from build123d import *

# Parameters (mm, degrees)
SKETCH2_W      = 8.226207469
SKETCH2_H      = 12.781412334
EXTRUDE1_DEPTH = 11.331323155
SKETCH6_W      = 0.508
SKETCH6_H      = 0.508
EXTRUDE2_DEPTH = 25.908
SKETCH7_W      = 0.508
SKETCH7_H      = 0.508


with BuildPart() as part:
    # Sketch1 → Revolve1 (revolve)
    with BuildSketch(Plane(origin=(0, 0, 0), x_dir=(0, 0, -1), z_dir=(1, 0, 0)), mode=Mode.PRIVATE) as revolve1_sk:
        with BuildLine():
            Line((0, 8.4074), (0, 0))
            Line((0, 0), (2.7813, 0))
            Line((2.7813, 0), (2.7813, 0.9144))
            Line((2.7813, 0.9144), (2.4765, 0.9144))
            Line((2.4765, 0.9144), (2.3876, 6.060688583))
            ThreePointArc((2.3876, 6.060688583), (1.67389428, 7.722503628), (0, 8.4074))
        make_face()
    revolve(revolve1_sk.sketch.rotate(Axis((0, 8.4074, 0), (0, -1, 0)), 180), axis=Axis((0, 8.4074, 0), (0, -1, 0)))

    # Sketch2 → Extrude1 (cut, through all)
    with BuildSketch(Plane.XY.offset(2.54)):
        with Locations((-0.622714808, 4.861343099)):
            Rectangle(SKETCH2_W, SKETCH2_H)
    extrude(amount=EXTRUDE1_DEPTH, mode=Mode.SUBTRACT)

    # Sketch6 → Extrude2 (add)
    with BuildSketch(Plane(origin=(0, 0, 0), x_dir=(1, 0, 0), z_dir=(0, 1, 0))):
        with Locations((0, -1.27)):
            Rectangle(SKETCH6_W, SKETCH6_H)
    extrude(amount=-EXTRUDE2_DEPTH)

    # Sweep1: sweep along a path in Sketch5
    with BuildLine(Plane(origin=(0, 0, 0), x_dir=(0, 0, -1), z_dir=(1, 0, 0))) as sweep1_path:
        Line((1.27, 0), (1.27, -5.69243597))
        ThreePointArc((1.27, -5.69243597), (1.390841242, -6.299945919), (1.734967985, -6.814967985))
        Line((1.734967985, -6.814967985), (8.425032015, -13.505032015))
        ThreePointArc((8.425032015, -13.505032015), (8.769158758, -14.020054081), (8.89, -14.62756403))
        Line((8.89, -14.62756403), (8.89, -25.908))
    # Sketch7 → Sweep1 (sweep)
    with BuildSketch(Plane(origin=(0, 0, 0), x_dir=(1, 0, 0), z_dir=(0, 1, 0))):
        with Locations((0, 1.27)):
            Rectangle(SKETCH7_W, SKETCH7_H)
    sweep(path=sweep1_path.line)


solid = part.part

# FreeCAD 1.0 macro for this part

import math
import FreeCAD as App
import Part
import Sketcher

V = App.Vector
Q = App.Units.Quantity

doc = App.newDocument("Part")
body = doc.addObject("PartDesign::Body", "Body")

# Sketch on YZ plane
sketch1 = body.newObject("Sketcher::SketchObject", "Sketch")
sketch1.AttachmentSupport = (doc.getObject("YZ_Plane"), [""])
sketch1.MapMode = "FlatFace"
sketch1.addGeometry(Part.LineSegment(V(8.41, 0, 0), V(0, 0, 0)), False)
sketch1.addGeometry(Part.LineSegment(V(0, 0, 0), V(0, -2.78, 0)), False)
sketch1.addGeometry(Part.LineSegment(V(0, -2.78, 0), V(0.91, -2.78, 0)), False)
sketch1.addGeometry(Part.LineSegment(V(0.91, -2.78, 0), V(0.91, -2.48, 0)), False)
sketch1.addGeometry(Part.LineSegment(V(0.91, -2.48, 0), V(6.06, -2.39, 0)), False)
sketch1.addGeometry(Part.ArcOfCircle(Part.Circle(V(6.02, 0, 0), V(0, 0, 1), 2.39), math.radians(-89), math.radians(0)), False)
sketch1.addConstraint(Sketcher.Constraint("Coincident", 0, 2, 1, 1))
sketch1.addConstraint(Sketcher.Constraint("Coincident", 1, 2, 2, 1))
sketch1.addConstraint(Sketcher.Constraint("Coincident", 2, 2, 3, 1))
sketch1.addConstraint(Sketcher.Constraint("Coincident", 3, 2, 4, 1))
sketch1.addConstraint(Sketcher.Constraint("Tangent", 4, 2, 5, 1))
sketch1.addConstraint(Sketcher.Constraint("Coincident", 5, 2, 0, 1))
sketch1.addConstraint(Sketcher.Constraint("Horizontal", 0))
sketch1.addConstraint(Sketcher.Constraint("Vertical", 1))
sketch1.addConstraint(Sketcher.Constraint("Horizontal", 2))
sketch1.addConstraint(Sketcher.Constraint("Vertical", 3))
sketch1.addConstraint(Sketcher.Constraint("Coincident", 0, 2, -1, 1))
sketch1.addConstraint(Sketcher.Constraint("PointOnObject", 5, 3, -1))
sketch1.addConstraint(Sketcher.Constraint("DistanceX", 0, 2, 0, 1, Q("0.331 in")))
sketch1.addConstraint(Sketcher.Constraint("DistanceX", 2, 1, 2, 2, Q("0.036 in")))
sketch1.addConstraint(Sketcher.Constraint("DistanceY", 3, 1, 3, 2, Q("0.012 in")))
sketch1.addConstraint(Sketcher.Constraint("DistanceY", 1, 2, 1, 1, Q("0.1095 in")))
sketch1.addConstraint(Sketcher.Constraint("DistanceY", 4, 2, -1, 1, Q("0.094 in")))
revolution = body.newObject("PartDesign::Revolution", "Revolution")
revolution.Profile = sketch1
revolution.ReferenceAxis = (sketch1, ["H_Axis"])
revolution.Angle = 360

# Sketch on XY plane
sketch2 = body.newObject("Sketcher::SketchObject", "Sketch001")
sketch2.AttachmentSupport = (doc.getObject("XY_Plane"), [""])
sketch2.MapMode = "FlatFace"
sketch2.AttachmentOffset = App.Placement(V(0, 0, 0.1 * 25.4), App.Rotation())
sketch2.addGeometry(Part.LineSegment(V(-5, 11, 0), V(-5, -2, 0)), False)
sketch2.addGeometry(Part.LineSegment(V(-5, -2, 0), V(3, -2, 0)), False)
sketch2.addGeometry(Part.LineSegment(V(3, -2, 0), V(3, 11, 0)), False)
sketch2.addGeometry(Part.LineSegment(V(3, 11, 0), V(-5, 11, 0)), False)
sketch2.addConstraint(Sketcher.Constraint("Coincident", 0, 2, 1, 1))
sketch2.addConstraint(Sketcher.Constraint("Coincident", 1, 2, 2, 1))
sketch2.addConstraint(Sketcher.Constraint("Coincident", 2, 2, 3, 1))
sketch2.addConstraint(Sketcher.Constraint("Coincident", 3, 2, 0, 1))
sketch2.addConstraint(Sketcher.Constraint("Vertical", 0))
sketch2.addConstraint(Sketcher.Constraint("Horizontal", 1))
sketch2.addConstraint(Sketcher.Constraint("Vertical", 2))
sketch2.addConstraint(Sketcher.Constraint("Horizontal", 3))
sketch2.addConstraint(Sketcher.Constraint("DistanceX", 1, 1, 1, 2, 8.226207))
sketch2.addConstraint(Sketcher.Constraint("DistanceY", 0, 2, 0, 1, 12.781412))
sketch2.addConstraint(Sketcher.Constraint("DistanceX", 0, 2, -1, 1, 4.735819))
sketch2.addConstraint(Sketcher.Constraint("DistanceY", -1, 1, 2, 2, 11.252049))
pocket1 = body.newObject("PartDesign::Pocket", "Pocket")
pocket1.Profile = sketch2
pocket1.Type = "ThroughAll"
pocket1.Reversed = True

# Sketch on XZ plane
sketch3 = body.newObject("Sketcher::SketchObject", "Sketch002")
sketch3.AttachmentSupport = (doc.getObject("XZ_Plane"), [""])
sketch3.MapMode = "FlatFace"
sketch3.addGeometry(Part.LineSegment(V(-0.3, 1, 0), V(-0.3, 1.5, 0)), False)
sketch3.addGeometry(Part.LineSegment(V(-0.3, 1.5, 0), V(0.3, 1.5, 0)), False)
sketch3.addGeometry(Part.LineSegment(V(0.3, 1.5, 0), V(0.3, 1, 0)), False)
sketch3.addGeometry(Part.LineSegment(V(0.3, 1, 0), V(-0.3, 1, 0)), False)
sketch3.addConstraint(Sketcher.Constraint("Coincident", 0, 2, 1, 1))
sketch3.addConstraint(Sketcher.Constraint("Coincident", 1, 2, 2, 1))
sketch3.addConstraint(Sketcher.Constraint("Coincident", 2, 2, 3, 1))
sketch3.addConstraint(Sketcher.Constraint("Coincident", 3, 2, 0, 1))
sketch3.addConstraint(Sketcher.Constraint("Vertical", 0))
sketch3.addConstraint(Sketcher.Constraint("Horizontal", 1))
sketch3.addConstraint(Sketcher.Constraint("Vertical", 2))
sketch3.addConstraint(Sketcher.Constraint("Horizontal", 3))
sketch3.addConstraint(Sketcher.Constraint("Equal", 3, 0))
sketch3.addConstraint(Sketcher.Constraint("DistanceX", 1, 1, 1, 2, Q("0.02 in")))
sketch3.addConstraint(Sketcher.Constraint("DistanceX", 0, 2, -1, 1, Q("0.01 in")))
sketch3.addConstraint(Sketcher.Constraint("DistanceY", -1, 1, 0, 2, Q("0.06 in")))
pad1 = body.newObject("PartDesign::Pad", "Pad")
pad1.Profile = sketch3
pad1.Length = Q("1.02 in")

# Sketch on XZ plane
sketch4 = body.newObject("Sketcher::SketchObject", "Sketch003")
sketch4.AttachmentSupport = (doc.getObject("XZ_Plane"), [""])
sketch4.MapMode = "FlatFace"
sketch4.addGeometry(Part.LineSegment(V(-0.3, -1.5, 0), V(-0.3, -1, 0)), False)
sketch4.addGeometry(Part.LineSegment(V(-0.3, -1, 0), V(0.3, -1, 0)), False)
sketch4.addGeometry(Part.LineSegment(V(0.3, -1, 0), V(0.3, -1.5, 0)), False)
sketch4.addGeometry(Part.LineSegment(V(0.3, -1.5, 0), V(-0.3, -1.5, 0)), False)
sketch4.addConstraint(Sketcher.Constraint("Coincident", 0, 2, 1, 1))
sketch4.addConstraint(Sketcher.Constraint("Coincident", 1, 2, 2, 1))
sketch4.addConstraint(Sketcher.Constraint("Coincident", 2, 2, 3, 1))
sketch4.addConstraint(Sketcher.Constraint("Coincident", 3, 2, 0, 1))
sketch4.addConstraint(Sketcher.Constraint("Vertical", 0))
sketch4.addConstraint(Sketcher.Constraint("Horizontal", 1))
sketch4.addConstraint(Sketcher.Constraint("Vertical", 2))
sketch4.addConstraint(Sketcher.Constraint("Horizontal", 3))
sketch4.addConstraint(Sketcher.Constraint("Equal", 3, 0))
sketch4.addConstraint(Sketcher.Constraint("DistanceX", 1, 1, 1, 2, Q("0.02 in")))
sketch4.addConstraint(Sketcher.Constraint("DistanceX", 0, 2, -1, 1, Q("0.01 in")))
sketch4.addConstraint(Sketcher.Constraint("DistanceY", 0, 2, -1, 1, Q("0.04 in")))

# Sketch on YZ plane
sketch5 = body.newObject("Sketcher::SketchObject", "Sketch004")
sketch5.AttachmentSupport = (doc.getObject("YZ_Plane"), [""])
sketch5.MapMode = "FlatFace"
sketch5.addGeometry(Part.LineSegment(V(0, -1.3, 0), V(-5.7, -1.3, 0)), False)
sketch5.addGeometry(Part.ArcOfCircle(Part.Circle(V(-5.7, -2.9, 0), V(0, 0, 1), 1.6), math.radians(90), math.radians(135)), False)
sketch5.addGeometry(Part.LineSegment(V(-6.8, -1.7, 0), V(-13.5, -8.4, 0)), False)
sketch5.addGeometry(Part.ArcOfCircle(Part.Circle(V(-14.6, -7.3, 0), V(0, 0, 1), 1.6), math.radians(-90), math.radians(-45)), False)
sketch5.addGeometry(Part.LineSegment(V(-14.6, -8.9, 0), V(-25.9, -8.9, 0)), False)
sketch5.addConstraint(Sketcher.Constraint("Tangent", 0, 2, 1, 1))
sketch5.addConstraint(Sketcher.Constraint("Tangent", 1, 2, 2, 1))
sketch5.addConstraint(Sketcher.Constraint("Tangent", 2, 2, 3, 2))
sketch5.addConstraint(Sketcher.Constraint("Tangent", 3, 1, 4, 1))
sketch5.addConstraint(Sketcher.Constraint("Horizontal", 0))
sketch5.addConstraint(Sketcher.Constraint("Horizontal", 4))
sketch5.addConstraint(Sketcher.Constraint("Equal", 1, 3))
sketch5.addConstraint(Sketcher.Constraint("PointOnObject", 0, 1, -2))
sketch5.addConstraint(Sketcher.Constraint("Angle", 2, Q("-135 deg")))
sketch5.addConstraint(Sketcher.Constraint("Radius", 1, Q("0.0625 in")))
sketch5.addConstraint(Sketcher.Constraint("DistanceY", 3, 1, 0, 2, Q("0.3 in")))
sketch5.addConstraint(Sketcher.Constraint("DistanceY", 0, 1, -1, 1, Q("0.05 in")))
sketch5.addConstraint(Sketcher.Constraint("DistanceX", 4, 2, -1, 1, Q("1.02 in")))
sketch5.addConstraint(Sketcher.Constraint("DistanceX", 0, 2, 0, 1, 5.692436))
doc.recompute()

additivepipe = body.newObject("PartDesign::AdditivePipe", "AdditivePipe")
additivepipe.Profile = sketch4
additivepipe.Spine = (sketch5, ["Edge1", "Edge2", "Edge3", "Edge4", "Edge5"])

doc.recompute()
